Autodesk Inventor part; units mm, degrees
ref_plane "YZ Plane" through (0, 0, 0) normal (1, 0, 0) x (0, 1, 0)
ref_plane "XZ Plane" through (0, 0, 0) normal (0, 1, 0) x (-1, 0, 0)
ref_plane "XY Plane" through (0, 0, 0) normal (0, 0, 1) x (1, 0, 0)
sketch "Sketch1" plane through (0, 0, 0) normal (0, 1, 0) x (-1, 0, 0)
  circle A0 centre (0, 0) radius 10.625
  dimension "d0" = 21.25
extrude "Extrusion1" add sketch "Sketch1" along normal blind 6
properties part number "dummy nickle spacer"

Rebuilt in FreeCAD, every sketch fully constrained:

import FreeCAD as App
import Part
import Sketcher

V = App.Vector
Q = App.Units.Quantity

doc = App.newDocument("Part")
body = doc.addObject("PartDesign::Body", "Body")

# Sketch on XZ plane
sketch1 = body.newObject("Sketcher::SketchObject", "Sketch")
sketch1.AttachmentSupport = (doc.getObject("XZ_Plane"), [""])
sketch1.MapMode = "FlatFace"
sketch1.addGeometry(Part.Circle(V(0, 0, 0), V(0, 0, 1), 11), False)
sketch1.addConstraint(Sketcher.Constraint("Coincident", 0, 3, -1, 1))
sketch1.addConstraint(Sketcher.Constraint("Diameter", 0, Q("21.25 mm")))
pad1 = body.newObject("PartDesign::Pad", "Pad")
pad1.Profile = sketch1
pad1.Length = 6
pad1.Reversed = True

doc.recompute()
